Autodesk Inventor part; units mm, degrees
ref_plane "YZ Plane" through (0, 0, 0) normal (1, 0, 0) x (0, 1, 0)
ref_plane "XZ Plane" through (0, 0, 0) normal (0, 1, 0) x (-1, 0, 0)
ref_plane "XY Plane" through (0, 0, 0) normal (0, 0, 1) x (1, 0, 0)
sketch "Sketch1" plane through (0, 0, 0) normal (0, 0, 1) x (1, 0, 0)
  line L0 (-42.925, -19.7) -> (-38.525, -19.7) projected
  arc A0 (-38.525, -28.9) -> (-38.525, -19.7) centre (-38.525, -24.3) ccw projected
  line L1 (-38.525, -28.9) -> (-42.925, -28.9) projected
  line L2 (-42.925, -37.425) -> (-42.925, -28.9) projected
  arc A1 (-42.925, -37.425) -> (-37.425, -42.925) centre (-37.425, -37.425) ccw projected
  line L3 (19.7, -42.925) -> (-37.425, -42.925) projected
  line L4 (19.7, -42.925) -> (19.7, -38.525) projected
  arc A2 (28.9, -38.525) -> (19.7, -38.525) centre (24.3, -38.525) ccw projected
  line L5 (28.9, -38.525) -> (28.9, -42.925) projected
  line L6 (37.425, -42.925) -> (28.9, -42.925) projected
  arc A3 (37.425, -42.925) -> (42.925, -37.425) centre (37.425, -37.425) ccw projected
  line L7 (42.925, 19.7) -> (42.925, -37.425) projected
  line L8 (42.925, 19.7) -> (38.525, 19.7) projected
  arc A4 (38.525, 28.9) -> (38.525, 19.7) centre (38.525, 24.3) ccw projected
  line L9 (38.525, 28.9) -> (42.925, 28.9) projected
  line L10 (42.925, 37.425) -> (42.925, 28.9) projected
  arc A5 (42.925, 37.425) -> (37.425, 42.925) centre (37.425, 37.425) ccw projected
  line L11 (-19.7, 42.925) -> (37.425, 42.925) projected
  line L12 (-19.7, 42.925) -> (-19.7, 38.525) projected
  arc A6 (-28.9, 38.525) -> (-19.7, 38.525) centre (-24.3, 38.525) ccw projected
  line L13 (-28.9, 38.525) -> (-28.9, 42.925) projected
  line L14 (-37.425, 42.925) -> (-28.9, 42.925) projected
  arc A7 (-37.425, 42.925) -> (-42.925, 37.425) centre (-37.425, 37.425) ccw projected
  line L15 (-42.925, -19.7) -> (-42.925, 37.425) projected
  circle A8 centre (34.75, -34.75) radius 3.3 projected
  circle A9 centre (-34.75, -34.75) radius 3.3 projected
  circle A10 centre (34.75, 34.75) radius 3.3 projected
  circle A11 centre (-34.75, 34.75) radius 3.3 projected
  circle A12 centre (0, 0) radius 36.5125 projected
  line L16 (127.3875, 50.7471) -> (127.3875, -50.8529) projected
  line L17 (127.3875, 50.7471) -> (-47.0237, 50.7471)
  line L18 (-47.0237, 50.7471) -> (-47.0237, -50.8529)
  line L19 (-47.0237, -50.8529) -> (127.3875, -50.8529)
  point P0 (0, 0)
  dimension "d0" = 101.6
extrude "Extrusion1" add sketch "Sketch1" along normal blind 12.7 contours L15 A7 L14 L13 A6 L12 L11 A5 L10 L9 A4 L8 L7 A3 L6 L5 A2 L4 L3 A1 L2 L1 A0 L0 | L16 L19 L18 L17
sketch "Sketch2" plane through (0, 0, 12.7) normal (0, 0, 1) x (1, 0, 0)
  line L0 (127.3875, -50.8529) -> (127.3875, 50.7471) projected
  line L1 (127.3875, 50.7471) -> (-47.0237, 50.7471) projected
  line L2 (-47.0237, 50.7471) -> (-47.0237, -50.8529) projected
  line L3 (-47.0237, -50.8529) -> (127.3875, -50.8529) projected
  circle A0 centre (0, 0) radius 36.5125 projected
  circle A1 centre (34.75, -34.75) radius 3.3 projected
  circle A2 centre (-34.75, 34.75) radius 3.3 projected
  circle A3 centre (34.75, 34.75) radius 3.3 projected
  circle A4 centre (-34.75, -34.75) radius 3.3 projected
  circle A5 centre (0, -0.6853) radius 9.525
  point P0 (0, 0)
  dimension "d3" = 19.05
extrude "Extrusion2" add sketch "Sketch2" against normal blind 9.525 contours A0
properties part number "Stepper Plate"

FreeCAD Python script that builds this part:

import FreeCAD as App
import Part
import Sketcher
Q = App.Units.Quantity

doc = App.newDocument("Part")
body = doc.addObject("PartDesign::Body", "Body")

# Sketch on XY plane
sketch1 = body.newObject("Sketcher::SketchObject", "Sketch")
sketch1.AttachmentSupport = (doc.getObject("XY_Plane"), [""])
sketch1.MapMode = "FlatFace"
sketch1.addGeometry(Part.LineSegment(App.Vector(127.4, -50.9, 0), App.Vector(127.4, 50.7, 0)), False)
sketch1.addGeometry(Part.LineSegment(App.Vector(127.4, 50.7, 0), App.Vector(-47, 50.7, 0)), False)
sketch1.addGeometry(Part.LineSegment(App.Vector(-47, 50.7, 0), App.Vector(-47, -50.9, 0)), False)
sketch1.addGeometry(Part.LineSegment(App.Vector(-47, -50.9, 0), App.Vector(127.4, -50.9, 0)), False)
sketch1.addGeometry(Part.Circle(App.Vector(-34.8, -34.8, 0), App.Vector(0, 0, 1), 3.3), False)
sketch1.addGeometry(Part.Circle(App.Vector(34.8, -34.8, 0), App.Vector(0, 0, 1), 3.3), False)
sketch1.addGeometry(Part.Circle(App.Vector(0, 0, 0), App.Vector(0, 0, 1), 36.5), False)
sketch1.addGeometry(Part.Circle(App.Vector(-34.8, 34.8, 0), App.Vector(0, 0, 1), 3.3), False)
sketch1.addGeometry(Part.Circle(App.Vector(34.8, 34.8, 0), App.Vector(0, 0, 1), 3.3), False)
sketch1.addConstraint(Sketcher.Constraint("Coincident", 0, 2, 1, 1))
sketch1.addConstraint(Sketcher.Constraint("Coincident", 1, 2, 2, 1))
sketch1.addConstraint(Sketcher.Constraint("Coincident", 2, 2, 3, 1))
sketch1.addConstraint(Sketcher.Constraint("Coincident", 3, 2, 0, 1))
sketch1.addConstraint(Sketcher.Constraint("Vertical", 0))
sketch1.addConstraint(Sketcher.Constraint("Horizontal", 1))
sketch1.addConstraint(Sketcher.Constraint("Vertical", 2))
sketch1.addConstraint(Sketcher.Constraint("Horizontal", 3))
sketch1.addConstraint(Sketcher.Constraint("Coincident", 6, 3, -1, 1))
sketch1.addConstraint(Sketcher.Constraint("Equal", 4, 5))
sketch1.addConstraint(Sketcher.Constraint("Equal", 5, 7))
sketch1.addConstraint(Sketcher.Constraint("Equal", 7, 8))
sketch1.addConstraint(Sketcher.Constraint("Symmetric", 5, 3, 7, 3, -1, 1))
sketch1.addConstraint(Sketcher.Constraint("Symmetric", 4, 3, 8, 3, -1, 1))
sketch1.addConstraint(Sketcher.Constraint("Symmetric", 4, 3, 5, 3, -2))
sketch1.addConstraint(Sketcher.Constraint("DistanceY", 0, 1, 0, 2, Q("4 in")))
sketch1.addConstraint(Sketcher.Constraint("Diameter", 6, Q("2.875 in")))
sketch1.addConstraint(Sketcher.Constraint("Diameter", 4, 6.6))
sketch1.addConstraint(Sketcher.Constraint("DistanceX", 1, 2, 1, 1, 174.4112))
sketch1.addConstraint(Sketcher.Constraint("DistanceX", 4, 3, -1, 1, Q("1.3681 in")))
sketch1.addConstraint(Sketcher.Constraint("DistanceY", 4, 3, -1, 1, Q("1.3681 in")))
sketch1.addConstraint(Sketcher.Constraint("DistanceY", 8, 3, 0, 2, Q("0.6298 in")))
sketch1.addConstraint(Sketcher.Constraint("DistanceX", -1, 1, 0, 2, 127.3875))
pad1 = body.newObject("PartDesign::Pad", "Pad")
pad1.Profile = sketch1
pad1.Length = Q("0.5 in")

# Sketch on XY plane
sketch2 = body.newObject("Sketcher::SketchObject", "Sketch001")
sketch2.AttachmentSupport = (doc.getObject("XY_Plane"), [""])
sketch2.MapMode = "FlatFace"
sketch2.AttachmentOffset = App.Placement(App.Vector(0, 0, 0.5 * 25.4), App.Rotation())
sketch2.addGeometry(Part.Circle(App.Vector(0, 0, 0), App.Vector(0, 0, 1), 37), False)
sketch2.addGeometry(Part.Circle(App.Vector(0, -1, 0), App.Vector(0, 0, 1), 10), False)
sketch2.addConstraint(Sketcher.Constraint("Coincident", 0, 3, -1, 1))
sketch2.addConstraint(Sketcher.Constraint("PointOnObject", 1, 3, -2))
sketch2.addConstraint(Sketcher.Constraint("Diameter", 1, Q("0.75 in")))
sketch2.addConstraint(Sketcher.Constraint("Diameter", 0, Q("2.875 in")))
sketch2.addConstraint(Sketcher.Constraint("DistanceY", 1, 3, -1, 1, 0.6853))
pad2 = body.newObject("PartDesign::Pad", "Pad001")
pad2.Profile = sketch2
pad2.Length = Q("0.375 in")
pad2.Reversed = True

doc.recompute()
